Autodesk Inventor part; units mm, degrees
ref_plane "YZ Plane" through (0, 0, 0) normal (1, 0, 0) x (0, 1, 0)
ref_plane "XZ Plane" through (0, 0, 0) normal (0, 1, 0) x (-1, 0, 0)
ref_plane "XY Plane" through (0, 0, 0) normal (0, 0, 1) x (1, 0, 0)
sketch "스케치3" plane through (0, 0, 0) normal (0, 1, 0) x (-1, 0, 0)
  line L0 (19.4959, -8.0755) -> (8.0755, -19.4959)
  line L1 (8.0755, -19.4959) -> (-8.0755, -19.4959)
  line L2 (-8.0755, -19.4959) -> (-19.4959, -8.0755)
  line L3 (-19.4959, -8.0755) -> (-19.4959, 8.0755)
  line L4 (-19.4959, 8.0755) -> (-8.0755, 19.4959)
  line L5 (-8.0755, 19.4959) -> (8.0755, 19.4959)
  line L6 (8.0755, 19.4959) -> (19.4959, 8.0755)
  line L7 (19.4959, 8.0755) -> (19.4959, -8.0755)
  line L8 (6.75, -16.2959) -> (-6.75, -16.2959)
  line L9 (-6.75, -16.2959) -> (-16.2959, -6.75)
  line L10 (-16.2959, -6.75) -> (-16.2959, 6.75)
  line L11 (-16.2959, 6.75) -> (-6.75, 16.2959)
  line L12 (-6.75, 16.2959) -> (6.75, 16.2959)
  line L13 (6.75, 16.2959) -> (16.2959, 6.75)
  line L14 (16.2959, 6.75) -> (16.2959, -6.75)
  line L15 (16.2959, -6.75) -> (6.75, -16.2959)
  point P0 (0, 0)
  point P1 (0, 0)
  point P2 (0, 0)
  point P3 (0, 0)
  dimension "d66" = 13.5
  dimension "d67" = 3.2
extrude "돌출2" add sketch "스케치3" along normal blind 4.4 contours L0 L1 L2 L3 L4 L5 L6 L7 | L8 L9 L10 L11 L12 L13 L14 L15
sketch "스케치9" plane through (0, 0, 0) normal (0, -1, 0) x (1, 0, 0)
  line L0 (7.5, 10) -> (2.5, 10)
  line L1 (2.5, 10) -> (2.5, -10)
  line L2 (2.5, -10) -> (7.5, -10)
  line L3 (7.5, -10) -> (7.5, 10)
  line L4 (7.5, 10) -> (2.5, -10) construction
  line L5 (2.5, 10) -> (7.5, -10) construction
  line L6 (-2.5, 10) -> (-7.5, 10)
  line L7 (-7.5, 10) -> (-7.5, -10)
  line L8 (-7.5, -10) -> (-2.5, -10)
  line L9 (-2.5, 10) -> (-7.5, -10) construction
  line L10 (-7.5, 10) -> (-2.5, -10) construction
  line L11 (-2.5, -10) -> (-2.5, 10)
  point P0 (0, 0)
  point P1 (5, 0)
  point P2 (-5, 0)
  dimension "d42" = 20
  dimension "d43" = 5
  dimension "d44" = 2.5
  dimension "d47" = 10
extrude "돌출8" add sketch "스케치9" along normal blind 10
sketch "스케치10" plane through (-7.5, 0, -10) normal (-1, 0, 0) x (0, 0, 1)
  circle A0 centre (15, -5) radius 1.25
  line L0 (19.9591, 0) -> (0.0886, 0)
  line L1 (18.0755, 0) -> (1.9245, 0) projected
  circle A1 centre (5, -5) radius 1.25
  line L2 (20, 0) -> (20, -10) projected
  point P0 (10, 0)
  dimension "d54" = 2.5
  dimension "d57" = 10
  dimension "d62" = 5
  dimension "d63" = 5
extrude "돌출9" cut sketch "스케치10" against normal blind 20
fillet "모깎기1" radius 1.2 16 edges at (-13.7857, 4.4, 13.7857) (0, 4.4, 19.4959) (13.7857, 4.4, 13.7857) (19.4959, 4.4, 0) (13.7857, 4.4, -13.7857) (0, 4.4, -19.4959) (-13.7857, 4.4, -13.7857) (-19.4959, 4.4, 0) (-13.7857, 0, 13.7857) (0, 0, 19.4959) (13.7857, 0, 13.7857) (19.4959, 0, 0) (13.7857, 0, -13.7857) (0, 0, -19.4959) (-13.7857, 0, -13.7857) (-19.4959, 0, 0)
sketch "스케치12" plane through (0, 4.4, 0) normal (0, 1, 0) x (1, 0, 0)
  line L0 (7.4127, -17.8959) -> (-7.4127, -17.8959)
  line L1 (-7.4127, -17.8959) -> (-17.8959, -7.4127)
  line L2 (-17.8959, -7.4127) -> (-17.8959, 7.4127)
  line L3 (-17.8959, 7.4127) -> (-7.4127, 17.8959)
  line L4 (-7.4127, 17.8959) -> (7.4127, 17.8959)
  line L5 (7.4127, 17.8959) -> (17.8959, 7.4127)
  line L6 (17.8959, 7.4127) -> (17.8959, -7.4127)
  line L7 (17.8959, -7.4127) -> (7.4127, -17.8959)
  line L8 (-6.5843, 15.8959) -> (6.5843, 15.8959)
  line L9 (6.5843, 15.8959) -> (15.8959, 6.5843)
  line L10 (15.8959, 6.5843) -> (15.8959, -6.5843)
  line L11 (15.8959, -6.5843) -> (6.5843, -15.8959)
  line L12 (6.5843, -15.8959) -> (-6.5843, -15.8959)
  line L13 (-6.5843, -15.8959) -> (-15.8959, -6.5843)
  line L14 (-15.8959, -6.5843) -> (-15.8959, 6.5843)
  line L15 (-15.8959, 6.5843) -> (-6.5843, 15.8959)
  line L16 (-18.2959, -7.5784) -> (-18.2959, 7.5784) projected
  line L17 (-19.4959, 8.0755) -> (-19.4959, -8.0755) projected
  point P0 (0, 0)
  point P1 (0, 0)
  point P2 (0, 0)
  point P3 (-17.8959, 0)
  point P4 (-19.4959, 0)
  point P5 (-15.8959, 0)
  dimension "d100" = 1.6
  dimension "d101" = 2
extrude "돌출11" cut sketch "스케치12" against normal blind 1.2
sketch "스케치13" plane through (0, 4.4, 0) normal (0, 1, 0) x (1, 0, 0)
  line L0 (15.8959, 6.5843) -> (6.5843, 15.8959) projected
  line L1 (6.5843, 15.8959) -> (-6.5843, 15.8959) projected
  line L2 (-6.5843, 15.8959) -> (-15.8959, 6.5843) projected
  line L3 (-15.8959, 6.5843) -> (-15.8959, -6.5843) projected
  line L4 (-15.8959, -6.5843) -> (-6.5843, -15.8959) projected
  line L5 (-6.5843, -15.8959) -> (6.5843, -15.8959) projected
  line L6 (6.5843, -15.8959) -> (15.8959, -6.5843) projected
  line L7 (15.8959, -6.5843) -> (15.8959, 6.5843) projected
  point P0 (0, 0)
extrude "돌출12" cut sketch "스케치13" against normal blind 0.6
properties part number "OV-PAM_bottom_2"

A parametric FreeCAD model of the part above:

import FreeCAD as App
import Part
import Sketcher
from FreeCAD import Vector


def edges_at(feature, points):
    """Names of the edges that pass closest to the given points."""
    edges = feature.Shape.Edges
    near = lambda p: min(range(len(edges)), key=lambda i: edges[i].distToShape(Part.Vertex(*p))[0])
    return sorted({f"Edge{near(p) + 1}" for p in points})

doc = App.newDocument("Part")
params = doc.addObject("Spreadsheet::Sheet", "Params")
for row, (alias, value) in enumerate([
    ("pad1_length", "4.4 mm"),
    ("sketch2_width", "5 mm"),
    ("sketch2_height", "20 mm"),
    ("pad2_length", "10 mm"),
    ("sketch3_diameter", "2.5 mm"),
    ("pocket1_length", "20 mm"),
    ("fillet_radius", "1.2 mm"),
    ("pocket2_length", "1.2 mm"),
    ("pocket3_length", "0.6 mm"),
], start=1):
    params.set(f"A{row}", alias)
    params.set(f"B{row}", "=" + value)
    params.setAlias(f"B{row}", alias)

body = doc.addObject("PartDesign::Body", "Body")

# Sketch on XZ plane
sketch1 = doc.addObject("Sketcher::SketchObject", "Sketch")
body.addObject(sketch1)
sketch1.AttachmentSupport = (doc.XZ_Plane, [""])
sketch1.MapMode = "FlatFace"
sketch1.addGeometry([
    Part.LineSegment(Vector(-8, -19, 0), Vector(-19, -8, 0)),  # 0
    Part.LineSegment(Vector(-19, -8, 0), Vector(-19, 8, 0)),  # 1
    Part.LineSegment(Vector(-19, 8, 0), Vector(-8, 19, 0)),  # 2
    Part.LineSegment(Vector(-8, 19, 0), Vector(8, 19, 0)),  # 3
    Part.LineSegment(Vector(8, 19, 0), Vector(19, 8, 0)),  # 4
    Part.LineSegment(Vector(19, 8, 0), Vector(19, -8, 0)),  # 5
    Part.LineSegment(Vector(19, -8, 0), Vector(8, -19, 0)),  # 6
    Part.LineSegment(Vector(8, -19, 0), Vector(-8, -19, 0)),  # 7
], False)
sketch1.addConstraint([
    Sketcher.Constraint("Coincident", 0, 2, 1, 1),
    Sketcher.Constraint("Coincident", 1, 2, 2, 1),
    Sketcher.Constraint("Coincident", 2, 2, 3, 1),
    Sketcher.Constraint("Coincident", 3, 2, 4, 1),
    Sketcher.Constraint("Coincident", 4, 2, 5, 1),
    Sketcher.Constraint("Coincident", 5, 2, 6, 1),
    Sketcher.Constraint("Coincident", 6, 2, 7, 1),
    Sketcher.Constraint("Coincident", 7, 2, 0, 1),
    Sketcher.Constraint("Vertical", 1),
    Sketcher.Constraint("Horizontal", 3),
    Sketcher.Constraint("Vertical", 5),
    Sketcher.Constraint("Horizontal", 7),
    Sketcher.Constraint("Symmetric", 0, 2, 4, 2, -1, 1),
    Sketcher.Constraint("Symmetric", 2, 2, 6, 2, -1, 1),
    Sketcher.Constraint("Perpendicular", 0, 2),
    Sketcher.Constraint("Perpendicular", 2, 4),
    Sketcher.Constraint("Perpendicular", 4, 6),
    Sketcher.Constraint("Horizontal", 1, 2, 4, 2),
    Sketcher.Constraint("Vertical", 3, 2, 6, 2),
    Sketcher.Constraint("Equal", 7, 1),
    Sketcher.Constraint("DistanceX", 3, 1, 3, 2, 16.151),
    Sketcher.Constraint("Distance", 0, 16.151),
])
pad1 = doc.addObject("PartDesign::Pad", "Pad")
body.addObject(pad1)
pad1.Profile = sketch1
pad1.setExpression("Length", "Params.pad1_length")
pad1.Reversed = True

# Sketch on XZ plane
sketch2 = doc.addObject("Sketcher::SketchObject", "Sketch001")
body.addObject(sketch2)
sketch2.AttachmentSupport = (doc.XZ_Plane, [""])
sketch2.MapMode = "FlatFace"
sketch2.addGeometry([
    Part.LineSegment(Vector(8, -10, 0), Vector(8, 10, 0)),  # 0
    Part.LineSegment(Vector(8, 10, 0), Vector(2, 10, 0)),  # 1
    Part.LineSegment(Vector(2, 10, 0), Vector(2, -10, 0)),  # 2
    Part.LineSegment(Vector(2, -10, 0), Vector(8, -10, 0)),  # 3
    Part.LineSegment(Vector(-2, -10, 0), Vector(-2, 10, 0)),  # 4
    Part.LineSegment(Vector(-2, 10, 0), Vector(-8, 10, 0)),  # 5
    Part.LineSegment(Vector(-8, 10, 0), Vector(-8, -10, 0)),  # 6
    Part.LineSegment(Vector(-8, -10, 0), Vector(-2, -10, 0)),  # 7
], False)
sketch2.addConstraint([
    Sketcher.Constraint("Coincident", 0, 2, 1, 1),
    Sketcher.Constraint("Coincident", 1, 2, 2, 1),
    Sketcher.Constraint("Coincident", 2, 2, 3, 1),
    Sketcher.Constraint("Coincident", 3, 2, 0, 1),
    Sketcher.Constraint("Coincident", 4, 2, 5, 1),
    Sketcher.Constraint("Coincident", 5, 2, 6, 1),
    Sketcher.Constraint("Coincident", 6, 2, 7, 1),
    Sketcher.Constraint("Coincident", 7, 2, 4, 1),
    Sketcher.Constraint("Vertical", 0),
    Sketcher.Constraint("Horizontal", 1),
    Sketcher.Constraint("Vertical", 2),
    Sketcher.Constraint("Horizontal", 3),
    Sketcher.Constraint("Vertical", 4),
    Sketcher.Constraint("Horizontal", 5),
    Sketcher.Constraint("Vertical", 6),
    Sketcher.Constraint("Horizontal", 7),
    Sketcher.Constraint("Symmetric", 2, 2, 4, 2, -1, 1),
    Sketcher.Constraint("Symmetric", 0, 2, 6, 2, -1, 1),
    Sketcher.Constraint("Horizontal", 1, 2, 4, 2),
    Sketcher.Constraint("DistanceX", 1, 2, 1, 1, 5.0),
    Sketcher.Constraint("DistanceY", 0, 1, 0, 2, 20.0),
    Sketcher.Constraint("DistanceX", 4, 2, 1, 2, 5.0),
])
sketch2.setExpression("Constraints[19]", "Params.sketch2_width")
sketch2.setExpression("Constraints[20]", "Params.sketch2_height")
pad2 = doc.addObject("PartDesign::Pad", "Pad001")
body.addObject(pad2)
pad2.Profile = sketch2
pad2.setExpression("Length", "Params.pad2_length")

# Sketch on YZ plane
sketch3 = doc.addObject("Sketcher::SketchObject", "Sketch002")
body.addObject(sketch3)
sketch3.AttachmentSupport = (doc.YZ_Plane, [""])
sketch3.MapMode = "FlatFace"
sketch3.AttachmentOffset = App.Placement(Vector(0, 0, -7.5), App.Rotation())
sketch3.addGeometry([
    Part.Circle(Vector(-5, 5, 0), Vector(0, 0, 1), 1.2),
    Part.Circle(Vector(-5, -5, 0), Vector(0, 0, 1), 1.2),
], False)
sketch3.addConstraint([
    Sketcher.Constraint("Equal", 0, 1),
    Sketcher.Constraint("Symmetric", 0, 3, 1, 3, -1),
    Sketcher.Constraint("Diameter", 0, 2.5),
    Sketcher.Constraint("DistanceX", 0, 3, -1, 1, 5.0),
    Sketcher.Constraint("DistanceY", -1, 1, 0, 3, 5.0),
])
sketch3.setExpression("Constraints[2]", "Params.sketch3_diameter")
pocket1 = doc.addObject("PartDesign::Pocket", "Pocket")
body.addObject(pocket1)
pocket1.Profile = sketch3
pocket1.setExpression("Length", "Params.pocket1_length")
pocket1.Reversed = True
doc.recompute()

fillet = doc.addObject("PartDesign::Fillet", "Fillet")
body.addObject(fillet)
fillet.Base = (pocket1, edges_at(pocket1, [
    (-13.786, 4.4, 13.786),
    (0, 4.4, 19.496),
    (13.786, 4.4, 13.786),
    (19.496, 4.4, 0),
    (13.786, 4.4, -13.786),
    (0, 4.4, -19.496),
    (-13.786, 4.4, -13.786),
    (-19.496, 4.4, 0),
    (-13.786, 0, 13.786),
    (0, 0, 19.496),
    (13.786, 0, 13.786),
    (19.496, 0, 0),
    (13.786, 0, -13.786),
    (0, 0, -19.496),
    (-13.786, 0, -13.786),
    (-19.496, 0, 0),
]))
fillet.setExpression("Radius", "Params.fillet_radius")

# Sketch on XZ plane
sketch4 = doc.addObject("Sketcher::SketchObject", "Sketch003")
body.addObject(sketch4)
sketch4.AttachmentSupport = (doc.XZ_Plane, [""])
sketch4.MapMode = "FlatFace"
sketch4.AttachmentOffset = App.Placement(Vector(0, 0, -4.4), App.Rotation())
sketch4.addGeometry([
    Part.LineSegment(Vector(-7, 18, 0), Vector(7, 18, 0)),  # 0
    Part.LineSegment(Vector(7, 18, 0), Vector(18, 7, 0)),  # 1
    Part.LineSegment(Vector(18, 7, 0), Vector(18, -7, 0)),  # 2
    Part.LineSegment(Vector(18, -7, 0), Vector(7, -18, 0)),  # 3
    Part.LineSegment(Vector(7, -18, 0), Vector(-7, -18, 0)),  # 4
    Part.LineSegment(Vector(-7, -18, 0), Vector(-18, -7, 0)),  # 5
    Part.LineSegment(Vector(-18, -7, 0), Vector(-18, 7, 0)),  # 6
    Part.LineSegment(Vector(-18, 7, 0), Vector(-7, 18, 0)),  # 7
    Part.LineSegment(Vector(-16, -7, 0), Vector(-7, -16, 0)),  # 8
    Part.LineSegment(Vector(-7, -16, 0), Vector(7, -16, 0)),  # 9
    Part.LineSegment(Vector(7, -16, 0), Vector(16, -7, 0)),  # 10
    Part.LineSegment(Vector(16, -7, 0), Vector(16, 7, 0)),  # 11
    Part.LineSegment(Vector(16, 7, 0), Vector(7, 16, 0)),  # 12
    Part.LineSegment(Vector(7, 16, 0), Vector(-7, 16, 0)),  # 13
    Part.LineSegment(Vector(-7, 16, 0), Vector(-16, 7, 0)),  # 14
    Part.LineSegment(Vector(-16, 7, 0), Vector(-16, -7, 0)),  # 15
], False)
sketch4.addConstraint([
    Sketcher.Constraint("Coincident", 0, 2, 1, 1),
    Sketcher.Constraint("Coincident", 1, 2, 2, 1),
    Sketcher.Constraint("Coincident", 2, 2, 3, 1),
    Sketcher.Constraint("Coincident", 3, 2, 4, 1),
    Sketcher.Constraint("Coincident", 4, 2, 5, 1),
    Sketcher.Constraint("Coincident", 5, 2, 6, 1),
    Sketcher.Constraint("Coincident", 6, 2, 7, 1),
    Sketcher.Constraint("Coincident", 7, 2, 0, 1),
    Sketcher.Constraint("Coincident", 8, 2, 9, 1),
    Sketcher.Constraint("Coincident", 9, 2, 10, 1),
    Sketcher.Constraint("Coincident", 10, 2, 11, 1),
    Sketcher.Constraint("Coincident", 11, 2, 12, 1),
    Sketcher.Constraint("Coincident", 12, 2, 13, 1),
    Sketcher.Constraint("Coincident", 13, 2, 14, 1),
    Sketcher.Constraint("Coincident", 14, 2, 15, 1),
    Sketcher.Constraint("Coincident", 15, 2, 8, 1),
    Sketcher.Constraint("Horizontal", 0),
    Sketcher.Constraint("Vertical", 2),
    Sketcher.Constraint("Horizontal", 4),
    Sketcher.Constraint("Vertical", 6),
    Sketcher.Constraint("Horizontal", 9),
    Sketcher.Constraint("Vertical", 11),
    Sketcher.Constraint("Horizontal", 13),
    Sketcher.Constraint("Vertical", 15),
    Sketcher.Constraint("Symmetric", 0, 2, 4, 2, -1, 1),
    Sketcher.Constraint("Symmetric", 1, 2, 5, 2, -1, 1),
    Sketcher.Constraint("Symmetric", 8, 2, 12, 2, -1, 1),
    Sketcher.Constraint("Symmetric", 10, 2, 14, 2, -1, 1),
    Sketcher.Constraint("Perpendicular", 1, 3),
    Sketcher.Constraint("Perpendicular", 5, 7),
    Sketcher.Constraint("Perpendicular", 7, 8),
    Sketcher.Constraint("Perpendicular", 8, 10),
    Sketcher.Constraint("Perpendicular", 10, 12),
    Sketcher.Constraint("Perpendicular", 12, 14),
    Sketcher.Constraint("Horizontal", 2, 2, 5, 2),
    Sketcher.Constraint("Horizontal", 1, 2, 6, 2),
    Sketcher.Constraint("Horizontal", 11, 2, 14, 2),
    Sketcher.Constraint("Vertical", 0, 2, 3, 2),
    Sketcher.Constraint("Equal", 4, 2),
    Sketcher.Constraint("Equal", 13, 11),
    Sketcher.Constraint("DistanceY", 4, 2, 8, 2, 2.0),
    Sketcher.Constraint("DistanceX", 0, 1, 0, 2, 14.8254),
    Sketcher.Constraint("DistanceX", 9, 1, 9, 2, 13.1686),
    Sketcher.Constraint("DistanceY", -1, 1, 0, 2, 17.896),
])
pocket2 = doc.addObject("PartDesign::Pocket", "Pocket001")
body.addObject(pocket2)
pocket2.Profile = sketch4
pocket2.setExpression("Length", "Params.pocket2_length")
pocket2.Reversed = True

# Sketch on XZ plane
sketch5 = doc.addObject("Sketcher::SketchObject", "Sketch004")
body.addObject(sketch5)
sketch5.AttachmentSupport = (doc.XZ_Plane, [""])
sketch5.MapMode = "FlatFace"
sketch5.AttachmentOffset = App.Placement(Vector(0, 0, -4.4), App.Rotation())
sketch5.addGeometry([
    Part.LineSegment(Vector(16, 7, 0), Vector(16, -7, 0)),  # 0
    Part.LineSegment(Vector(16, -7, 0), Vector(7, -16, 0)),  # 1
    Part.LineSegment(Vector(7, -16, 0), Vector(-7, -16, 0)),  # 2
    Part.LineSegment(Vector(-7, -16, 0), Vector(-16, -7, 0)),  # 3
    Part.LineSegment(Vector(-16, -7, 0), Vector(-16, 7, 0)),  # 4
    Part.LineSegment(Vector(-16, 7, 0), Vector(-7, 16, 0)),  # 5
    Part.LineSegment(Vector(-7, 16, 0), Vector(7, 16, 0)),  # 6
    Part.LineSegment(Vector(7, 16, 0), Vector(16, 7, 0)),  # 7
], False)
sketch5.addConstraint([
    Sketcher.Constraint("Coincident", 0, 2, 1, 1),
    Sketcher.Constraint("Coincident", 1, 2, 2, 1),
    Sketcher.Constraint("Coincident", 2, 2, 3, 1),
    Sketcher.Constraint("Coincident", 3, 2, 4, 1),
    Sketcher.Constraint("Coincident", 4, 2, 5, 1),
    Sketcher.Constraint("Coincident", 5, 2, 6, 1),
    Sketcher.Constraint("Coincident", 6, 2, 7, 1),
    Sketcher.Constraint("Coincident", 7, 2, 0, 1),
    Sketcher.Constraint("Vertical", 0),
    Sketcher.Constraint("Horizontal", 2),
    Sketcher.Constraint("Vertical", 4),
    Sketcher.Constraint("Horizontal", 6),
    Sketcher.Constraint("Symmetric", 0, 2, 4, 2, -1, 1),
    Sketcher.Constraint("Symmetric", 1, 2, 5, 2, -1, 1),
    Sketcher.Constraint("Perpendicular", 1, 3),
    Sketcher.Constraint("Perpendicular", 5, 7),
    Sketcher.Constraint("Horizontal", 0, 2, 3, 2),
    Sketcher.Constraint("Horizontal", 4, 2, 7, 2),
    Sketcher.Constraint("Vertical", 2, 2, 5, 2),
    Sketcher.Constraint("Equal", 6, 0),
    Sketcher.Constraint("DistanceX", 2, 2, 2, 1, 13.1686),
    Sketcher.Constraint("DistanceX", -1, 1, 0, 2, 15.896),
])
pocket3 = doc.addObject("PartDesign::Pocket", "Pocket002")
body.addObject(pocket3)
pocket3.Profile = sketch5
pocket3.setExpression("Length", "Params.pocket3_length")
pocket3.Reversed = True

doc.recompute()
